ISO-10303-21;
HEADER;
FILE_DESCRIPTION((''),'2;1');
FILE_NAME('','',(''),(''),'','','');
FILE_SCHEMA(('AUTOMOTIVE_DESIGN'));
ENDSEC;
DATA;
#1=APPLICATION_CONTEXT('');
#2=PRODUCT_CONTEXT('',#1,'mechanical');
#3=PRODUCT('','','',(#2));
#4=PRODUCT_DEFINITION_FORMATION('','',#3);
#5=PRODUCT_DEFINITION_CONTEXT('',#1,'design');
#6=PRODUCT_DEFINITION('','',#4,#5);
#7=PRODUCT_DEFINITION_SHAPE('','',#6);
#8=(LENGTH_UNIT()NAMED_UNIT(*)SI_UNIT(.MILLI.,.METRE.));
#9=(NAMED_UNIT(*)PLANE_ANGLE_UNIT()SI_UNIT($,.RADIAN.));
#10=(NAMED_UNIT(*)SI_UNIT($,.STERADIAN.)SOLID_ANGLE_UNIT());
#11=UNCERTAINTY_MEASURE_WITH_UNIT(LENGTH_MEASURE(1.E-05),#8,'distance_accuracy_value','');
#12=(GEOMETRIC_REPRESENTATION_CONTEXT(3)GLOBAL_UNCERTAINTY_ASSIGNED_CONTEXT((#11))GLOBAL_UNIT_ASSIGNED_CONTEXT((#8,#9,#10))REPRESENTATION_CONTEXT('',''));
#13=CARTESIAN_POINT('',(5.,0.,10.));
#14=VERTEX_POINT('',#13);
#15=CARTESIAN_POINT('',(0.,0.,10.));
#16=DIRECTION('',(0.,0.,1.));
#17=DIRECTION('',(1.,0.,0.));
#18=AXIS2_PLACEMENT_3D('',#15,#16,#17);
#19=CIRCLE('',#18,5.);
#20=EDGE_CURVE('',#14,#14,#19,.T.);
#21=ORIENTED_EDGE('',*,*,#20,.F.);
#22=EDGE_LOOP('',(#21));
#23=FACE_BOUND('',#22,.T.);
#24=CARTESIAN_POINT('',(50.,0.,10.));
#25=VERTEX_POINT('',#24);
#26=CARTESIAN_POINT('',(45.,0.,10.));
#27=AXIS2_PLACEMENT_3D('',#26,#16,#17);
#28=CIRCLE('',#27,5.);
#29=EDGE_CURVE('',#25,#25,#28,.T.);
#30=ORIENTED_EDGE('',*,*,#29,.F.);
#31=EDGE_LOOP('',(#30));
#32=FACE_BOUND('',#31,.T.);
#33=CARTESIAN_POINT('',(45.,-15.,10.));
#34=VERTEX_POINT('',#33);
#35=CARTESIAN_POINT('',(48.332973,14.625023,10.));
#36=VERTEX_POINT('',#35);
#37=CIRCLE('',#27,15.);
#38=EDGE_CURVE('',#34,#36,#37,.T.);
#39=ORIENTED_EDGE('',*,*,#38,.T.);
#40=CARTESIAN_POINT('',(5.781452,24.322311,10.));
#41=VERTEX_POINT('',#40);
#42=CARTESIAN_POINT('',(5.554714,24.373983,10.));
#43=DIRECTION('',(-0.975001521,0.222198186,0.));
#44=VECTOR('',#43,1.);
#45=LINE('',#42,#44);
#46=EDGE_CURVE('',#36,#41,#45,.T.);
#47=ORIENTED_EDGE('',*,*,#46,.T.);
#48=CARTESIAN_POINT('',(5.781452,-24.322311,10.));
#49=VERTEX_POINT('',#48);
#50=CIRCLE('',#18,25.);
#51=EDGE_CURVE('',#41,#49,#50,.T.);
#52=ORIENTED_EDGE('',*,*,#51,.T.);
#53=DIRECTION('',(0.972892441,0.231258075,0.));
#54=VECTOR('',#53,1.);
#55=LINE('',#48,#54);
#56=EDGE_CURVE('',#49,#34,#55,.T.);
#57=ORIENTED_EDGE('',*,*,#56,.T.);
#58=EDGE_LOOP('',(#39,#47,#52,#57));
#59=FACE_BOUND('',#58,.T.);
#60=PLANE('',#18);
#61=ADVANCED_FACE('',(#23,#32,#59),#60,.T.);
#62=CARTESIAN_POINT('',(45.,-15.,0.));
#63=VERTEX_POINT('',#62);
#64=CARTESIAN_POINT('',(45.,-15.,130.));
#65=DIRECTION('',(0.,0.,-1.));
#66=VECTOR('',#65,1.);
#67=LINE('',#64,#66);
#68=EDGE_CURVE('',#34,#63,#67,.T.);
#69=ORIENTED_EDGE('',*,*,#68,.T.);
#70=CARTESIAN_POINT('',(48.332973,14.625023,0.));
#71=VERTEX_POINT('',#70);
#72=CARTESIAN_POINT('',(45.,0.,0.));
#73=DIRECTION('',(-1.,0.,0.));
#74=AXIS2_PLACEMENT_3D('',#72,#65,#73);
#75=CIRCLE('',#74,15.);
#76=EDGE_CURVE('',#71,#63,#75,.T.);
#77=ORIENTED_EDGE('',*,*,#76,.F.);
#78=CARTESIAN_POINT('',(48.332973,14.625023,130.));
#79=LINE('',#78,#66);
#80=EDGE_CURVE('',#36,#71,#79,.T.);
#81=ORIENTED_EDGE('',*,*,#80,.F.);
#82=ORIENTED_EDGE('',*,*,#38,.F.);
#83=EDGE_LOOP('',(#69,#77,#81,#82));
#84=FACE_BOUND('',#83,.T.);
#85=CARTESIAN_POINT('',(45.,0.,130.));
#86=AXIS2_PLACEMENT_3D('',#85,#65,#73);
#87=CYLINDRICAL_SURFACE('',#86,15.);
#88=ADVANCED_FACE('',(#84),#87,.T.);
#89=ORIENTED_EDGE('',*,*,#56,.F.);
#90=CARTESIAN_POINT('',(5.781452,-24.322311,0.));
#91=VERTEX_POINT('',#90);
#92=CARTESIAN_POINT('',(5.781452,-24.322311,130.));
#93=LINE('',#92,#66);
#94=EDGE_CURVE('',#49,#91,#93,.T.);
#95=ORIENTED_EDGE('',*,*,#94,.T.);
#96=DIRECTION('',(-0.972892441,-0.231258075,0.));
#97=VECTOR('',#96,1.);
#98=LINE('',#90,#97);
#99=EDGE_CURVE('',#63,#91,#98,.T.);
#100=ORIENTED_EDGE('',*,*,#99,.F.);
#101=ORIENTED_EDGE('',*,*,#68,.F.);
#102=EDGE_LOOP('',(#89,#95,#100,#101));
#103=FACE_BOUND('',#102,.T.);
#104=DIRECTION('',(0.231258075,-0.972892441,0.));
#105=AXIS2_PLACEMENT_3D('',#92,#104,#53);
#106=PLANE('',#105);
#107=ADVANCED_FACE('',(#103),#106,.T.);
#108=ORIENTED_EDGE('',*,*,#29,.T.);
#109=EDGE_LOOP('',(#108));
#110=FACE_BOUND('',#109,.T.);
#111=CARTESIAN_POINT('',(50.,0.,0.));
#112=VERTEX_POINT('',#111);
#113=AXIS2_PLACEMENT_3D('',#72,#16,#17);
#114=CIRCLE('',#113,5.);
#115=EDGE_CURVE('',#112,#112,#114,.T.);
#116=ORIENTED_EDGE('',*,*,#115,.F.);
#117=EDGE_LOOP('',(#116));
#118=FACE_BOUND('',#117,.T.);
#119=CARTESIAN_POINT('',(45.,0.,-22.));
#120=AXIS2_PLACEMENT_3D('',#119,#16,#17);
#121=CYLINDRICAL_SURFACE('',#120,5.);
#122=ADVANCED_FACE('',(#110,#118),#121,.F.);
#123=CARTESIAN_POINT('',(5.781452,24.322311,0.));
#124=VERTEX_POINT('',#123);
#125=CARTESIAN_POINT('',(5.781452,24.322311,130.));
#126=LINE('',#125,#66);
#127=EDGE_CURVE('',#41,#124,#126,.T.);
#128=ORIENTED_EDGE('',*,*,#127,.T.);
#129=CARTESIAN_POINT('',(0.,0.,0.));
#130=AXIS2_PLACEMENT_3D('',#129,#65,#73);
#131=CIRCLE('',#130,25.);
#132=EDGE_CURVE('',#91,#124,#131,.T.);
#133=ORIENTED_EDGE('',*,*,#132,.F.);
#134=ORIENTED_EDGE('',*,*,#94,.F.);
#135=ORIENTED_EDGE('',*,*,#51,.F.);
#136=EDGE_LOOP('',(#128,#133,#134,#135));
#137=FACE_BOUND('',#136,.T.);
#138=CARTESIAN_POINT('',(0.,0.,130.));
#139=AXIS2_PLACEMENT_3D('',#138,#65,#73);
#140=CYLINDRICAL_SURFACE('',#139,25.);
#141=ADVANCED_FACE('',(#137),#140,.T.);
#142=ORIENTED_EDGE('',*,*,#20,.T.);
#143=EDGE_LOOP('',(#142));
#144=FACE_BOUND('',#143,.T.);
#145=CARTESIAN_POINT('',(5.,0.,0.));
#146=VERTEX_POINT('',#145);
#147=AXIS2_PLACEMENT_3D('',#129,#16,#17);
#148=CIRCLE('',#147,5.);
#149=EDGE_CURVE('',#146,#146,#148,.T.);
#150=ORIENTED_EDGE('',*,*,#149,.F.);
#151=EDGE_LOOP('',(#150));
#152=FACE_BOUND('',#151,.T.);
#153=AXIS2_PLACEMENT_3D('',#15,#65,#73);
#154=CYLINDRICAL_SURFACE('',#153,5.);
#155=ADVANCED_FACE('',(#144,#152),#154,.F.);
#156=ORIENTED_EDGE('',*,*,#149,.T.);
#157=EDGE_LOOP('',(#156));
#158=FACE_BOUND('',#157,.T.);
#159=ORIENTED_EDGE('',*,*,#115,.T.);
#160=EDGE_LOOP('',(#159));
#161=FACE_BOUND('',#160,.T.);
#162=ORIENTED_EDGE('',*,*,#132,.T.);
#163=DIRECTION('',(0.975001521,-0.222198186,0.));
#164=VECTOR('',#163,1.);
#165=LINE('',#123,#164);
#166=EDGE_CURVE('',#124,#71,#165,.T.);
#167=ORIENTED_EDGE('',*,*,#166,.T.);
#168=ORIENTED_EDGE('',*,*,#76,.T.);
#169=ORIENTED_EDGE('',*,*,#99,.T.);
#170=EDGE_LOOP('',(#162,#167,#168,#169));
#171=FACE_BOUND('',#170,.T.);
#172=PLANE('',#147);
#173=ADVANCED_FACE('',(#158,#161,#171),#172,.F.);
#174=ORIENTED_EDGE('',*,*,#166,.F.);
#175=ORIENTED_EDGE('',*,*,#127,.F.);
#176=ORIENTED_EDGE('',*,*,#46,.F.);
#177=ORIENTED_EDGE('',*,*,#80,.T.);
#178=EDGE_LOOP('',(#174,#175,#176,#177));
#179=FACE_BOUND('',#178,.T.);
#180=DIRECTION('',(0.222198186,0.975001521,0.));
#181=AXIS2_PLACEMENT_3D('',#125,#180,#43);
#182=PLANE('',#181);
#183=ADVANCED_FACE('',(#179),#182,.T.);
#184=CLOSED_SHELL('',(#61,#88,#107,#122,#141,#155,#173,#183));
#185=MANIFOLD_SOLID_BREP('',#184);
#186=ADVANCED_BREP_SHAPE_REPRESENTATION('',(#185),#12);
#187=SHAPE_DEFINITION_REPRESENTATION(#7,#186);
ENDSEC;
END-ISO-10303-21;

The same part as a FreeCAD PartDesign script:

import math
import FreeCAD as App
import Part
import Sketcher
from FreeCAD import Vector

doc = App.newDocument("Part")
body = doc.addObject("PartDesign::Body", "Body")

sketch1 = body.newObject("Sketcher::SketchObject", "Sketch")
sketch1.AttachmentSupport = (doc.getObject("XY_Plane"), [""])
sketch1.MapMode = "FlatFace"
sketch1.addGeometry([
    Part.Circle(Vector(0, 0, 0), Vector(0, 0, 1), 60),
    Part.Circle(Vector(0, 0, 0), Vector(0, 0, 1), 5),
], False)
sketch1.addConstraint([
    Sketcher.Constraint("Coincident", 0, 3, -1, 1),
    Sketcher.Constraint("Coincident", 1, 3, -1, 1),
    Sketcher.Constraint("Diameter", 0, 120.0),
    Sketcher.Constraint("Diameter", 1, 10.0),
])
pad1 = body.newObject("PartDesign::Pad", "Pad")
pad1.Profile = sketch1
pad1.Length = 10

sketch2 = body.newObject("Sketcher::SketchObject", "Sketch001")
sketch2.AttachmentSupport = (doc.getObject("XY_Plane"), [""])
sketch2.MapMode = "FlatFace"
sketch2.AttachmentOffset = App.Placement(Vector(0, 0, 10), App.Rotation())
sketch2.addGeometry(Part.Circle(Vector(45, 0, 0), Vector(0, 0, 1), 5), False)
sketch2.addConstraint([
    Sketcher.Constraint("PointOnObject", 0, 3, -1),
    Sketcher.Constraint("Diameter", 0, 10.0),
    Sketcher.Constraint("DistanceX", -1, 1, 0, 3, 45.0),
])
pocket1 = body.newObject("PartDesign::Pocket", "Pocket")
pocket1.Profile = sketch2
pocket1.Length = 32

sketch3 = body.newObject("Sketcher::SketchObject", "Sketch002")
sketch3.AttachmentSupport = (doc.getObject("XY_Plane"), [""])
sketch3.MapMode = "FlatFace"
sketch3.addGeometry([
    Part.Circle(Vector(0, 0, 0), Vector(0, 0, 1), 81.078971),
    Part.ArcOfCircle(Part.Circle(Vector(0, 0, 0), Vector(0, 0, 1), 25), math.radians(76.628849), math.radians(283.371151)),
    Part.LineSegment(Vector(5.781452, -24.322311, 0), Vector(45, -15, 0)),
    Part.ArcOfCircle(Part.Circle(Vector(45, 0, 0), Vector(0, 0, 1), 15), math.radians(-90), math.radians(77.161824)),
    Part.LineSegment(Vector(48.332973, 14.625023, 0), Vector(5.781452, 24.322311, 0)),
], False)
sketch3.addConstraint([
    Sketcher.Constraint("Tangent", 1, 2, 2, 1),
    Sketcher.Constraint("Coincident", 2, 2, 3, 1),
    Sketcher.Constraint("Tangent", 3, 2, 4, 1),
    Sketcher.Constraint("Coincident", 4, 2, 1, 1),
    Sketcher.Constraint("Coincident", 0, 3, -1, 1),
    Sketcher.Constraint("Coincident", 1, 3, -1, 1),
    Sketcher.Constraint("PointOnObject", 3, 3, -1),
    Sketcher.Constraint("Vertical", 3, 3, 2, 2),
    Sketcher.Constraint("Vertical", 1, 2, 4, 2),
    Sketcher.Constraint("Radius", 1, 25.0),
    Sketcher.Constraint("Radius", 3, 15.0),
    Sketcher.Constraint("DistanceX", -1, 1, 3, 3, 45.0),
    Sketcher.Constraint("Diameter", 0, 162.157942),
])
pocket2 = body.newObject("PartDesign::Pocket", "Pocket001")
pocket2.Profile = sketch3
pocket2.Length = 130
pocket2.Reversed = True

doc.recompute()
